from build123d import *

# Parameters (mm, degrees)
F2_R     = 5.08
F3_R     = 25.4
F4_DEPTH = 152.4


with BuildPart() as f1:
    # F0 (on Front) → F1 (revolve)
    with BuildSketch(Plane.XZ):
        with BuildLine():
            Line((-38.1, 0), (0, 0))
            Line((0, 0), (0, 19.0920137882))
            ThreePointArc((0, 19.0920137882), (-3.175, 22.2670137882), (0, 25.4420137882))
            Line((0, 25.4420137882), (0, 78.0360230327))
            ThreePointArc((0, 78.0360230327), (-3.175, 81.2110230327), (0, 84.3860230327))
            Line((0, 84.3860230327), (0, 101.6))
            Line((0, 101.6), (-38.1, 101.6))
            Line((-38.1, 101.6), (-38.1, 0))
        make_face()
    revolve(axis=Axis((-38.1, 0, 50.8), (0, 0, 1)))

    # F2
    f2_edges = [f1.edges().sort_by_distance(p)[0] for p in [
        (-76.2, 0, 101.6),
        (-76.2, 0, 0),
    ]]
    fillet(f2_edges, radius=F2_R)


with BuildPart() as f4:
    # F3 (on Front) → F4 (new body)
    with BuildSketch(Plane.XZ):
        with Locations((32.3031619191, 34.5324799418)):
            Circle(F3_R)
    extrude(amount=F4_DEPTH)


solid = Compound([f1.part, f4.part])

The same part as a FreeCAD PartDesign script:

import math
import FreeCAD as App
import Part
import Sketcher
from FreeCAD import Vector
Q = App.Units.Quantity


def edges_at(feature, points):
    """Names of the edges that pass closest to the given points."""
    edges = feature.Shape.Edges
    near = lambda p: min(range(len(edges)), key=lambda i: edges[i].distToShape(Part.Vertex(*p))[0])
    return sorted({f"Edge{near(p) + 1}" for p in points})

doc = App.newDocument("Part")
body = doc.addObject("PartDesign::Body", "Body")

# Sketch on XZ plane
sketch1 = body.newObject("Sketcher::SketchObject", "Sketch")
sketch1.AttachmentSupport = (doc.getObject("XZ_Plane"), [""])
sketch1.MapMode = "FlatFace"
sketch1.addGeometry([
    Part.LineSegment(Vector(-38.1, 0, 0), Vector(0, 0, 0)),  # 0
    Part.LineSegment(Vector(0, 0, 0), Vector(0, 19.1, 0)),  # 1
    Part.ArcOfCircle(Part.Circle(Vector(0, 22.3, 0), Vector(0, 0, 1), 3.2), math.radians(90), math.radians(270)),  # 2
    Part.LineSegment(Vector(0, 25.4, 0), Vector(0, 78, 0)),  # 3
    Part.ArcOfCircle(Part.Circle(Vector(0, 81.2, 0), Vector(0, 0, 1), 3.2), math.radians(90), math.radians(270)),  # 4
    Part.LineSegment(Vector(0, 84.4, 0), Vector(0, 101.6, 0)),  # 5
    Part.LineSegment(Vector(0, 101.6, 0), Vector(-38.1, 101.6, 0)),  # 6
    Part.LineSegment(Vector(-38.1, 101.6, 0), Vector(-38.1, 0, 0)),  # 7
], False)
sketch1.addGeometry(Part.LineSegment(Vector(-38.1, 0, 0), Vector(-38.1, 101.6, 0)), True)  # axis
sketch1.addConstraint([
    Sketcher.Constraint("Coincident", 0, 2, 1, 1),
    Sketcher.Constraint("Coincident", 1, 2, 2, 2),
    Sketcher.Constraint("Coincident", 2, 1, 3, 1),
    Sketcher.Constraint("Coincident", 3, 2, 4, 2),
    Sketcher.Constraint("Coincident", 4, 1, 5, 1),
    Sketcher.Constraint("Coincident", 5, 2, 6, 1),
    Sketcher.Constraint("Coincident", 6, 2, 7, 1),
    Sketcher.Constraint("Coincident", 7, 2, 0, 1),
    Sketcher.Constraint("Horizontal", 0),
    Sketcher.Constraint("Vertical", 1),
    Sketcher.Constraint("Vertical", 3),
    Sketcher.Constraint("Vertical", 5),
    Sketcher.Constraint("Horizontal", 6),
    Sketcher.Constraint("Vertical", 7),
    Sketcher.Constraint("Vertical", 8),
    Sketcher.Constraint("Coincident", 0, 2, -1, 1),
    Sketcher.Constraint("Coincident", 8, 1, 7, 2),
    Sketcher.Constraint("Equal", 2, 4),
    Sketcher.Constraint("PointOnObject", 2, 3, -2),
    Sketcher.Constraint("PointOnObject", 4, 3, -2),
    Sketcher.Constraint("PointOnObject", 2, 1, -2),
    Sketcher.Constraint("PointOnObject", 4, 1, -2),
    Sketcher.Constraint("Horizontal", 5, 2, 8, 2),
    Sketcher.Constraint("DistanceY", 7, 2, 7, 1, Q("4 in")),
    Sketcher.Constraint("DistanceX", 0, 1, 0, 2, Q("1.5 in")),
    Sketcher.Constraint("Radius", 2, Q("0.125 in")),
    Sketcher.Constraint("DistanceY", 3, 1, 3, 2, 52.594009),
    Sketcher.Constraint("DistanceY", 1, 1, 1, 2, 19.092014),
])
revolution = body.newObject("PartDesign::Revolution", "Revolution")
revolution.Profile = sketch1
revolution.ReferenceAxis = (sketch1, ["Axis0"])
revolution.Angle = 360
doc.recompute()

fillet = body.newObject("PartDesign::Fillet", "Fillet")
fillet.Base = (revolution, edges_at(revolution, [(-76.2, 0, 101.6), (-76.2, 0, 0)]))
fillet.Radius = Q("0.2 in")
body2 = doc.addObject("PartDesign::Body", "Body001")

# Sketch on XZ plane
sketch2 = body2.newObject("Sketcher::SketchObject", "Sketch001")
sketch2.AttachmentSupport = (doc.getObject("XZ_Plane001"), [""])
sketch2.MapMode = "FlatFace"
sketch2.addGeometry(Part.Circle(Vector(32, 35, 0), Vector(0, 0, 1), 25), False)
sketch2.addConstraint([
    Sketcher.Constraint("Diameter", 0, Q("2 in")),
    Sketcher.Constraint("DistanceX", -1, 1, 0, 3, 32.303162),
    Sketcher.Constraint("DistanceY", -1, 1, 0, 3, 34.53248),
])
pad1 = body2.newObject("PartDesign::Pad", "Pad")
pad1.Profile = sketch2
pad1.Length = Q("6 in")

doc.recompute()
